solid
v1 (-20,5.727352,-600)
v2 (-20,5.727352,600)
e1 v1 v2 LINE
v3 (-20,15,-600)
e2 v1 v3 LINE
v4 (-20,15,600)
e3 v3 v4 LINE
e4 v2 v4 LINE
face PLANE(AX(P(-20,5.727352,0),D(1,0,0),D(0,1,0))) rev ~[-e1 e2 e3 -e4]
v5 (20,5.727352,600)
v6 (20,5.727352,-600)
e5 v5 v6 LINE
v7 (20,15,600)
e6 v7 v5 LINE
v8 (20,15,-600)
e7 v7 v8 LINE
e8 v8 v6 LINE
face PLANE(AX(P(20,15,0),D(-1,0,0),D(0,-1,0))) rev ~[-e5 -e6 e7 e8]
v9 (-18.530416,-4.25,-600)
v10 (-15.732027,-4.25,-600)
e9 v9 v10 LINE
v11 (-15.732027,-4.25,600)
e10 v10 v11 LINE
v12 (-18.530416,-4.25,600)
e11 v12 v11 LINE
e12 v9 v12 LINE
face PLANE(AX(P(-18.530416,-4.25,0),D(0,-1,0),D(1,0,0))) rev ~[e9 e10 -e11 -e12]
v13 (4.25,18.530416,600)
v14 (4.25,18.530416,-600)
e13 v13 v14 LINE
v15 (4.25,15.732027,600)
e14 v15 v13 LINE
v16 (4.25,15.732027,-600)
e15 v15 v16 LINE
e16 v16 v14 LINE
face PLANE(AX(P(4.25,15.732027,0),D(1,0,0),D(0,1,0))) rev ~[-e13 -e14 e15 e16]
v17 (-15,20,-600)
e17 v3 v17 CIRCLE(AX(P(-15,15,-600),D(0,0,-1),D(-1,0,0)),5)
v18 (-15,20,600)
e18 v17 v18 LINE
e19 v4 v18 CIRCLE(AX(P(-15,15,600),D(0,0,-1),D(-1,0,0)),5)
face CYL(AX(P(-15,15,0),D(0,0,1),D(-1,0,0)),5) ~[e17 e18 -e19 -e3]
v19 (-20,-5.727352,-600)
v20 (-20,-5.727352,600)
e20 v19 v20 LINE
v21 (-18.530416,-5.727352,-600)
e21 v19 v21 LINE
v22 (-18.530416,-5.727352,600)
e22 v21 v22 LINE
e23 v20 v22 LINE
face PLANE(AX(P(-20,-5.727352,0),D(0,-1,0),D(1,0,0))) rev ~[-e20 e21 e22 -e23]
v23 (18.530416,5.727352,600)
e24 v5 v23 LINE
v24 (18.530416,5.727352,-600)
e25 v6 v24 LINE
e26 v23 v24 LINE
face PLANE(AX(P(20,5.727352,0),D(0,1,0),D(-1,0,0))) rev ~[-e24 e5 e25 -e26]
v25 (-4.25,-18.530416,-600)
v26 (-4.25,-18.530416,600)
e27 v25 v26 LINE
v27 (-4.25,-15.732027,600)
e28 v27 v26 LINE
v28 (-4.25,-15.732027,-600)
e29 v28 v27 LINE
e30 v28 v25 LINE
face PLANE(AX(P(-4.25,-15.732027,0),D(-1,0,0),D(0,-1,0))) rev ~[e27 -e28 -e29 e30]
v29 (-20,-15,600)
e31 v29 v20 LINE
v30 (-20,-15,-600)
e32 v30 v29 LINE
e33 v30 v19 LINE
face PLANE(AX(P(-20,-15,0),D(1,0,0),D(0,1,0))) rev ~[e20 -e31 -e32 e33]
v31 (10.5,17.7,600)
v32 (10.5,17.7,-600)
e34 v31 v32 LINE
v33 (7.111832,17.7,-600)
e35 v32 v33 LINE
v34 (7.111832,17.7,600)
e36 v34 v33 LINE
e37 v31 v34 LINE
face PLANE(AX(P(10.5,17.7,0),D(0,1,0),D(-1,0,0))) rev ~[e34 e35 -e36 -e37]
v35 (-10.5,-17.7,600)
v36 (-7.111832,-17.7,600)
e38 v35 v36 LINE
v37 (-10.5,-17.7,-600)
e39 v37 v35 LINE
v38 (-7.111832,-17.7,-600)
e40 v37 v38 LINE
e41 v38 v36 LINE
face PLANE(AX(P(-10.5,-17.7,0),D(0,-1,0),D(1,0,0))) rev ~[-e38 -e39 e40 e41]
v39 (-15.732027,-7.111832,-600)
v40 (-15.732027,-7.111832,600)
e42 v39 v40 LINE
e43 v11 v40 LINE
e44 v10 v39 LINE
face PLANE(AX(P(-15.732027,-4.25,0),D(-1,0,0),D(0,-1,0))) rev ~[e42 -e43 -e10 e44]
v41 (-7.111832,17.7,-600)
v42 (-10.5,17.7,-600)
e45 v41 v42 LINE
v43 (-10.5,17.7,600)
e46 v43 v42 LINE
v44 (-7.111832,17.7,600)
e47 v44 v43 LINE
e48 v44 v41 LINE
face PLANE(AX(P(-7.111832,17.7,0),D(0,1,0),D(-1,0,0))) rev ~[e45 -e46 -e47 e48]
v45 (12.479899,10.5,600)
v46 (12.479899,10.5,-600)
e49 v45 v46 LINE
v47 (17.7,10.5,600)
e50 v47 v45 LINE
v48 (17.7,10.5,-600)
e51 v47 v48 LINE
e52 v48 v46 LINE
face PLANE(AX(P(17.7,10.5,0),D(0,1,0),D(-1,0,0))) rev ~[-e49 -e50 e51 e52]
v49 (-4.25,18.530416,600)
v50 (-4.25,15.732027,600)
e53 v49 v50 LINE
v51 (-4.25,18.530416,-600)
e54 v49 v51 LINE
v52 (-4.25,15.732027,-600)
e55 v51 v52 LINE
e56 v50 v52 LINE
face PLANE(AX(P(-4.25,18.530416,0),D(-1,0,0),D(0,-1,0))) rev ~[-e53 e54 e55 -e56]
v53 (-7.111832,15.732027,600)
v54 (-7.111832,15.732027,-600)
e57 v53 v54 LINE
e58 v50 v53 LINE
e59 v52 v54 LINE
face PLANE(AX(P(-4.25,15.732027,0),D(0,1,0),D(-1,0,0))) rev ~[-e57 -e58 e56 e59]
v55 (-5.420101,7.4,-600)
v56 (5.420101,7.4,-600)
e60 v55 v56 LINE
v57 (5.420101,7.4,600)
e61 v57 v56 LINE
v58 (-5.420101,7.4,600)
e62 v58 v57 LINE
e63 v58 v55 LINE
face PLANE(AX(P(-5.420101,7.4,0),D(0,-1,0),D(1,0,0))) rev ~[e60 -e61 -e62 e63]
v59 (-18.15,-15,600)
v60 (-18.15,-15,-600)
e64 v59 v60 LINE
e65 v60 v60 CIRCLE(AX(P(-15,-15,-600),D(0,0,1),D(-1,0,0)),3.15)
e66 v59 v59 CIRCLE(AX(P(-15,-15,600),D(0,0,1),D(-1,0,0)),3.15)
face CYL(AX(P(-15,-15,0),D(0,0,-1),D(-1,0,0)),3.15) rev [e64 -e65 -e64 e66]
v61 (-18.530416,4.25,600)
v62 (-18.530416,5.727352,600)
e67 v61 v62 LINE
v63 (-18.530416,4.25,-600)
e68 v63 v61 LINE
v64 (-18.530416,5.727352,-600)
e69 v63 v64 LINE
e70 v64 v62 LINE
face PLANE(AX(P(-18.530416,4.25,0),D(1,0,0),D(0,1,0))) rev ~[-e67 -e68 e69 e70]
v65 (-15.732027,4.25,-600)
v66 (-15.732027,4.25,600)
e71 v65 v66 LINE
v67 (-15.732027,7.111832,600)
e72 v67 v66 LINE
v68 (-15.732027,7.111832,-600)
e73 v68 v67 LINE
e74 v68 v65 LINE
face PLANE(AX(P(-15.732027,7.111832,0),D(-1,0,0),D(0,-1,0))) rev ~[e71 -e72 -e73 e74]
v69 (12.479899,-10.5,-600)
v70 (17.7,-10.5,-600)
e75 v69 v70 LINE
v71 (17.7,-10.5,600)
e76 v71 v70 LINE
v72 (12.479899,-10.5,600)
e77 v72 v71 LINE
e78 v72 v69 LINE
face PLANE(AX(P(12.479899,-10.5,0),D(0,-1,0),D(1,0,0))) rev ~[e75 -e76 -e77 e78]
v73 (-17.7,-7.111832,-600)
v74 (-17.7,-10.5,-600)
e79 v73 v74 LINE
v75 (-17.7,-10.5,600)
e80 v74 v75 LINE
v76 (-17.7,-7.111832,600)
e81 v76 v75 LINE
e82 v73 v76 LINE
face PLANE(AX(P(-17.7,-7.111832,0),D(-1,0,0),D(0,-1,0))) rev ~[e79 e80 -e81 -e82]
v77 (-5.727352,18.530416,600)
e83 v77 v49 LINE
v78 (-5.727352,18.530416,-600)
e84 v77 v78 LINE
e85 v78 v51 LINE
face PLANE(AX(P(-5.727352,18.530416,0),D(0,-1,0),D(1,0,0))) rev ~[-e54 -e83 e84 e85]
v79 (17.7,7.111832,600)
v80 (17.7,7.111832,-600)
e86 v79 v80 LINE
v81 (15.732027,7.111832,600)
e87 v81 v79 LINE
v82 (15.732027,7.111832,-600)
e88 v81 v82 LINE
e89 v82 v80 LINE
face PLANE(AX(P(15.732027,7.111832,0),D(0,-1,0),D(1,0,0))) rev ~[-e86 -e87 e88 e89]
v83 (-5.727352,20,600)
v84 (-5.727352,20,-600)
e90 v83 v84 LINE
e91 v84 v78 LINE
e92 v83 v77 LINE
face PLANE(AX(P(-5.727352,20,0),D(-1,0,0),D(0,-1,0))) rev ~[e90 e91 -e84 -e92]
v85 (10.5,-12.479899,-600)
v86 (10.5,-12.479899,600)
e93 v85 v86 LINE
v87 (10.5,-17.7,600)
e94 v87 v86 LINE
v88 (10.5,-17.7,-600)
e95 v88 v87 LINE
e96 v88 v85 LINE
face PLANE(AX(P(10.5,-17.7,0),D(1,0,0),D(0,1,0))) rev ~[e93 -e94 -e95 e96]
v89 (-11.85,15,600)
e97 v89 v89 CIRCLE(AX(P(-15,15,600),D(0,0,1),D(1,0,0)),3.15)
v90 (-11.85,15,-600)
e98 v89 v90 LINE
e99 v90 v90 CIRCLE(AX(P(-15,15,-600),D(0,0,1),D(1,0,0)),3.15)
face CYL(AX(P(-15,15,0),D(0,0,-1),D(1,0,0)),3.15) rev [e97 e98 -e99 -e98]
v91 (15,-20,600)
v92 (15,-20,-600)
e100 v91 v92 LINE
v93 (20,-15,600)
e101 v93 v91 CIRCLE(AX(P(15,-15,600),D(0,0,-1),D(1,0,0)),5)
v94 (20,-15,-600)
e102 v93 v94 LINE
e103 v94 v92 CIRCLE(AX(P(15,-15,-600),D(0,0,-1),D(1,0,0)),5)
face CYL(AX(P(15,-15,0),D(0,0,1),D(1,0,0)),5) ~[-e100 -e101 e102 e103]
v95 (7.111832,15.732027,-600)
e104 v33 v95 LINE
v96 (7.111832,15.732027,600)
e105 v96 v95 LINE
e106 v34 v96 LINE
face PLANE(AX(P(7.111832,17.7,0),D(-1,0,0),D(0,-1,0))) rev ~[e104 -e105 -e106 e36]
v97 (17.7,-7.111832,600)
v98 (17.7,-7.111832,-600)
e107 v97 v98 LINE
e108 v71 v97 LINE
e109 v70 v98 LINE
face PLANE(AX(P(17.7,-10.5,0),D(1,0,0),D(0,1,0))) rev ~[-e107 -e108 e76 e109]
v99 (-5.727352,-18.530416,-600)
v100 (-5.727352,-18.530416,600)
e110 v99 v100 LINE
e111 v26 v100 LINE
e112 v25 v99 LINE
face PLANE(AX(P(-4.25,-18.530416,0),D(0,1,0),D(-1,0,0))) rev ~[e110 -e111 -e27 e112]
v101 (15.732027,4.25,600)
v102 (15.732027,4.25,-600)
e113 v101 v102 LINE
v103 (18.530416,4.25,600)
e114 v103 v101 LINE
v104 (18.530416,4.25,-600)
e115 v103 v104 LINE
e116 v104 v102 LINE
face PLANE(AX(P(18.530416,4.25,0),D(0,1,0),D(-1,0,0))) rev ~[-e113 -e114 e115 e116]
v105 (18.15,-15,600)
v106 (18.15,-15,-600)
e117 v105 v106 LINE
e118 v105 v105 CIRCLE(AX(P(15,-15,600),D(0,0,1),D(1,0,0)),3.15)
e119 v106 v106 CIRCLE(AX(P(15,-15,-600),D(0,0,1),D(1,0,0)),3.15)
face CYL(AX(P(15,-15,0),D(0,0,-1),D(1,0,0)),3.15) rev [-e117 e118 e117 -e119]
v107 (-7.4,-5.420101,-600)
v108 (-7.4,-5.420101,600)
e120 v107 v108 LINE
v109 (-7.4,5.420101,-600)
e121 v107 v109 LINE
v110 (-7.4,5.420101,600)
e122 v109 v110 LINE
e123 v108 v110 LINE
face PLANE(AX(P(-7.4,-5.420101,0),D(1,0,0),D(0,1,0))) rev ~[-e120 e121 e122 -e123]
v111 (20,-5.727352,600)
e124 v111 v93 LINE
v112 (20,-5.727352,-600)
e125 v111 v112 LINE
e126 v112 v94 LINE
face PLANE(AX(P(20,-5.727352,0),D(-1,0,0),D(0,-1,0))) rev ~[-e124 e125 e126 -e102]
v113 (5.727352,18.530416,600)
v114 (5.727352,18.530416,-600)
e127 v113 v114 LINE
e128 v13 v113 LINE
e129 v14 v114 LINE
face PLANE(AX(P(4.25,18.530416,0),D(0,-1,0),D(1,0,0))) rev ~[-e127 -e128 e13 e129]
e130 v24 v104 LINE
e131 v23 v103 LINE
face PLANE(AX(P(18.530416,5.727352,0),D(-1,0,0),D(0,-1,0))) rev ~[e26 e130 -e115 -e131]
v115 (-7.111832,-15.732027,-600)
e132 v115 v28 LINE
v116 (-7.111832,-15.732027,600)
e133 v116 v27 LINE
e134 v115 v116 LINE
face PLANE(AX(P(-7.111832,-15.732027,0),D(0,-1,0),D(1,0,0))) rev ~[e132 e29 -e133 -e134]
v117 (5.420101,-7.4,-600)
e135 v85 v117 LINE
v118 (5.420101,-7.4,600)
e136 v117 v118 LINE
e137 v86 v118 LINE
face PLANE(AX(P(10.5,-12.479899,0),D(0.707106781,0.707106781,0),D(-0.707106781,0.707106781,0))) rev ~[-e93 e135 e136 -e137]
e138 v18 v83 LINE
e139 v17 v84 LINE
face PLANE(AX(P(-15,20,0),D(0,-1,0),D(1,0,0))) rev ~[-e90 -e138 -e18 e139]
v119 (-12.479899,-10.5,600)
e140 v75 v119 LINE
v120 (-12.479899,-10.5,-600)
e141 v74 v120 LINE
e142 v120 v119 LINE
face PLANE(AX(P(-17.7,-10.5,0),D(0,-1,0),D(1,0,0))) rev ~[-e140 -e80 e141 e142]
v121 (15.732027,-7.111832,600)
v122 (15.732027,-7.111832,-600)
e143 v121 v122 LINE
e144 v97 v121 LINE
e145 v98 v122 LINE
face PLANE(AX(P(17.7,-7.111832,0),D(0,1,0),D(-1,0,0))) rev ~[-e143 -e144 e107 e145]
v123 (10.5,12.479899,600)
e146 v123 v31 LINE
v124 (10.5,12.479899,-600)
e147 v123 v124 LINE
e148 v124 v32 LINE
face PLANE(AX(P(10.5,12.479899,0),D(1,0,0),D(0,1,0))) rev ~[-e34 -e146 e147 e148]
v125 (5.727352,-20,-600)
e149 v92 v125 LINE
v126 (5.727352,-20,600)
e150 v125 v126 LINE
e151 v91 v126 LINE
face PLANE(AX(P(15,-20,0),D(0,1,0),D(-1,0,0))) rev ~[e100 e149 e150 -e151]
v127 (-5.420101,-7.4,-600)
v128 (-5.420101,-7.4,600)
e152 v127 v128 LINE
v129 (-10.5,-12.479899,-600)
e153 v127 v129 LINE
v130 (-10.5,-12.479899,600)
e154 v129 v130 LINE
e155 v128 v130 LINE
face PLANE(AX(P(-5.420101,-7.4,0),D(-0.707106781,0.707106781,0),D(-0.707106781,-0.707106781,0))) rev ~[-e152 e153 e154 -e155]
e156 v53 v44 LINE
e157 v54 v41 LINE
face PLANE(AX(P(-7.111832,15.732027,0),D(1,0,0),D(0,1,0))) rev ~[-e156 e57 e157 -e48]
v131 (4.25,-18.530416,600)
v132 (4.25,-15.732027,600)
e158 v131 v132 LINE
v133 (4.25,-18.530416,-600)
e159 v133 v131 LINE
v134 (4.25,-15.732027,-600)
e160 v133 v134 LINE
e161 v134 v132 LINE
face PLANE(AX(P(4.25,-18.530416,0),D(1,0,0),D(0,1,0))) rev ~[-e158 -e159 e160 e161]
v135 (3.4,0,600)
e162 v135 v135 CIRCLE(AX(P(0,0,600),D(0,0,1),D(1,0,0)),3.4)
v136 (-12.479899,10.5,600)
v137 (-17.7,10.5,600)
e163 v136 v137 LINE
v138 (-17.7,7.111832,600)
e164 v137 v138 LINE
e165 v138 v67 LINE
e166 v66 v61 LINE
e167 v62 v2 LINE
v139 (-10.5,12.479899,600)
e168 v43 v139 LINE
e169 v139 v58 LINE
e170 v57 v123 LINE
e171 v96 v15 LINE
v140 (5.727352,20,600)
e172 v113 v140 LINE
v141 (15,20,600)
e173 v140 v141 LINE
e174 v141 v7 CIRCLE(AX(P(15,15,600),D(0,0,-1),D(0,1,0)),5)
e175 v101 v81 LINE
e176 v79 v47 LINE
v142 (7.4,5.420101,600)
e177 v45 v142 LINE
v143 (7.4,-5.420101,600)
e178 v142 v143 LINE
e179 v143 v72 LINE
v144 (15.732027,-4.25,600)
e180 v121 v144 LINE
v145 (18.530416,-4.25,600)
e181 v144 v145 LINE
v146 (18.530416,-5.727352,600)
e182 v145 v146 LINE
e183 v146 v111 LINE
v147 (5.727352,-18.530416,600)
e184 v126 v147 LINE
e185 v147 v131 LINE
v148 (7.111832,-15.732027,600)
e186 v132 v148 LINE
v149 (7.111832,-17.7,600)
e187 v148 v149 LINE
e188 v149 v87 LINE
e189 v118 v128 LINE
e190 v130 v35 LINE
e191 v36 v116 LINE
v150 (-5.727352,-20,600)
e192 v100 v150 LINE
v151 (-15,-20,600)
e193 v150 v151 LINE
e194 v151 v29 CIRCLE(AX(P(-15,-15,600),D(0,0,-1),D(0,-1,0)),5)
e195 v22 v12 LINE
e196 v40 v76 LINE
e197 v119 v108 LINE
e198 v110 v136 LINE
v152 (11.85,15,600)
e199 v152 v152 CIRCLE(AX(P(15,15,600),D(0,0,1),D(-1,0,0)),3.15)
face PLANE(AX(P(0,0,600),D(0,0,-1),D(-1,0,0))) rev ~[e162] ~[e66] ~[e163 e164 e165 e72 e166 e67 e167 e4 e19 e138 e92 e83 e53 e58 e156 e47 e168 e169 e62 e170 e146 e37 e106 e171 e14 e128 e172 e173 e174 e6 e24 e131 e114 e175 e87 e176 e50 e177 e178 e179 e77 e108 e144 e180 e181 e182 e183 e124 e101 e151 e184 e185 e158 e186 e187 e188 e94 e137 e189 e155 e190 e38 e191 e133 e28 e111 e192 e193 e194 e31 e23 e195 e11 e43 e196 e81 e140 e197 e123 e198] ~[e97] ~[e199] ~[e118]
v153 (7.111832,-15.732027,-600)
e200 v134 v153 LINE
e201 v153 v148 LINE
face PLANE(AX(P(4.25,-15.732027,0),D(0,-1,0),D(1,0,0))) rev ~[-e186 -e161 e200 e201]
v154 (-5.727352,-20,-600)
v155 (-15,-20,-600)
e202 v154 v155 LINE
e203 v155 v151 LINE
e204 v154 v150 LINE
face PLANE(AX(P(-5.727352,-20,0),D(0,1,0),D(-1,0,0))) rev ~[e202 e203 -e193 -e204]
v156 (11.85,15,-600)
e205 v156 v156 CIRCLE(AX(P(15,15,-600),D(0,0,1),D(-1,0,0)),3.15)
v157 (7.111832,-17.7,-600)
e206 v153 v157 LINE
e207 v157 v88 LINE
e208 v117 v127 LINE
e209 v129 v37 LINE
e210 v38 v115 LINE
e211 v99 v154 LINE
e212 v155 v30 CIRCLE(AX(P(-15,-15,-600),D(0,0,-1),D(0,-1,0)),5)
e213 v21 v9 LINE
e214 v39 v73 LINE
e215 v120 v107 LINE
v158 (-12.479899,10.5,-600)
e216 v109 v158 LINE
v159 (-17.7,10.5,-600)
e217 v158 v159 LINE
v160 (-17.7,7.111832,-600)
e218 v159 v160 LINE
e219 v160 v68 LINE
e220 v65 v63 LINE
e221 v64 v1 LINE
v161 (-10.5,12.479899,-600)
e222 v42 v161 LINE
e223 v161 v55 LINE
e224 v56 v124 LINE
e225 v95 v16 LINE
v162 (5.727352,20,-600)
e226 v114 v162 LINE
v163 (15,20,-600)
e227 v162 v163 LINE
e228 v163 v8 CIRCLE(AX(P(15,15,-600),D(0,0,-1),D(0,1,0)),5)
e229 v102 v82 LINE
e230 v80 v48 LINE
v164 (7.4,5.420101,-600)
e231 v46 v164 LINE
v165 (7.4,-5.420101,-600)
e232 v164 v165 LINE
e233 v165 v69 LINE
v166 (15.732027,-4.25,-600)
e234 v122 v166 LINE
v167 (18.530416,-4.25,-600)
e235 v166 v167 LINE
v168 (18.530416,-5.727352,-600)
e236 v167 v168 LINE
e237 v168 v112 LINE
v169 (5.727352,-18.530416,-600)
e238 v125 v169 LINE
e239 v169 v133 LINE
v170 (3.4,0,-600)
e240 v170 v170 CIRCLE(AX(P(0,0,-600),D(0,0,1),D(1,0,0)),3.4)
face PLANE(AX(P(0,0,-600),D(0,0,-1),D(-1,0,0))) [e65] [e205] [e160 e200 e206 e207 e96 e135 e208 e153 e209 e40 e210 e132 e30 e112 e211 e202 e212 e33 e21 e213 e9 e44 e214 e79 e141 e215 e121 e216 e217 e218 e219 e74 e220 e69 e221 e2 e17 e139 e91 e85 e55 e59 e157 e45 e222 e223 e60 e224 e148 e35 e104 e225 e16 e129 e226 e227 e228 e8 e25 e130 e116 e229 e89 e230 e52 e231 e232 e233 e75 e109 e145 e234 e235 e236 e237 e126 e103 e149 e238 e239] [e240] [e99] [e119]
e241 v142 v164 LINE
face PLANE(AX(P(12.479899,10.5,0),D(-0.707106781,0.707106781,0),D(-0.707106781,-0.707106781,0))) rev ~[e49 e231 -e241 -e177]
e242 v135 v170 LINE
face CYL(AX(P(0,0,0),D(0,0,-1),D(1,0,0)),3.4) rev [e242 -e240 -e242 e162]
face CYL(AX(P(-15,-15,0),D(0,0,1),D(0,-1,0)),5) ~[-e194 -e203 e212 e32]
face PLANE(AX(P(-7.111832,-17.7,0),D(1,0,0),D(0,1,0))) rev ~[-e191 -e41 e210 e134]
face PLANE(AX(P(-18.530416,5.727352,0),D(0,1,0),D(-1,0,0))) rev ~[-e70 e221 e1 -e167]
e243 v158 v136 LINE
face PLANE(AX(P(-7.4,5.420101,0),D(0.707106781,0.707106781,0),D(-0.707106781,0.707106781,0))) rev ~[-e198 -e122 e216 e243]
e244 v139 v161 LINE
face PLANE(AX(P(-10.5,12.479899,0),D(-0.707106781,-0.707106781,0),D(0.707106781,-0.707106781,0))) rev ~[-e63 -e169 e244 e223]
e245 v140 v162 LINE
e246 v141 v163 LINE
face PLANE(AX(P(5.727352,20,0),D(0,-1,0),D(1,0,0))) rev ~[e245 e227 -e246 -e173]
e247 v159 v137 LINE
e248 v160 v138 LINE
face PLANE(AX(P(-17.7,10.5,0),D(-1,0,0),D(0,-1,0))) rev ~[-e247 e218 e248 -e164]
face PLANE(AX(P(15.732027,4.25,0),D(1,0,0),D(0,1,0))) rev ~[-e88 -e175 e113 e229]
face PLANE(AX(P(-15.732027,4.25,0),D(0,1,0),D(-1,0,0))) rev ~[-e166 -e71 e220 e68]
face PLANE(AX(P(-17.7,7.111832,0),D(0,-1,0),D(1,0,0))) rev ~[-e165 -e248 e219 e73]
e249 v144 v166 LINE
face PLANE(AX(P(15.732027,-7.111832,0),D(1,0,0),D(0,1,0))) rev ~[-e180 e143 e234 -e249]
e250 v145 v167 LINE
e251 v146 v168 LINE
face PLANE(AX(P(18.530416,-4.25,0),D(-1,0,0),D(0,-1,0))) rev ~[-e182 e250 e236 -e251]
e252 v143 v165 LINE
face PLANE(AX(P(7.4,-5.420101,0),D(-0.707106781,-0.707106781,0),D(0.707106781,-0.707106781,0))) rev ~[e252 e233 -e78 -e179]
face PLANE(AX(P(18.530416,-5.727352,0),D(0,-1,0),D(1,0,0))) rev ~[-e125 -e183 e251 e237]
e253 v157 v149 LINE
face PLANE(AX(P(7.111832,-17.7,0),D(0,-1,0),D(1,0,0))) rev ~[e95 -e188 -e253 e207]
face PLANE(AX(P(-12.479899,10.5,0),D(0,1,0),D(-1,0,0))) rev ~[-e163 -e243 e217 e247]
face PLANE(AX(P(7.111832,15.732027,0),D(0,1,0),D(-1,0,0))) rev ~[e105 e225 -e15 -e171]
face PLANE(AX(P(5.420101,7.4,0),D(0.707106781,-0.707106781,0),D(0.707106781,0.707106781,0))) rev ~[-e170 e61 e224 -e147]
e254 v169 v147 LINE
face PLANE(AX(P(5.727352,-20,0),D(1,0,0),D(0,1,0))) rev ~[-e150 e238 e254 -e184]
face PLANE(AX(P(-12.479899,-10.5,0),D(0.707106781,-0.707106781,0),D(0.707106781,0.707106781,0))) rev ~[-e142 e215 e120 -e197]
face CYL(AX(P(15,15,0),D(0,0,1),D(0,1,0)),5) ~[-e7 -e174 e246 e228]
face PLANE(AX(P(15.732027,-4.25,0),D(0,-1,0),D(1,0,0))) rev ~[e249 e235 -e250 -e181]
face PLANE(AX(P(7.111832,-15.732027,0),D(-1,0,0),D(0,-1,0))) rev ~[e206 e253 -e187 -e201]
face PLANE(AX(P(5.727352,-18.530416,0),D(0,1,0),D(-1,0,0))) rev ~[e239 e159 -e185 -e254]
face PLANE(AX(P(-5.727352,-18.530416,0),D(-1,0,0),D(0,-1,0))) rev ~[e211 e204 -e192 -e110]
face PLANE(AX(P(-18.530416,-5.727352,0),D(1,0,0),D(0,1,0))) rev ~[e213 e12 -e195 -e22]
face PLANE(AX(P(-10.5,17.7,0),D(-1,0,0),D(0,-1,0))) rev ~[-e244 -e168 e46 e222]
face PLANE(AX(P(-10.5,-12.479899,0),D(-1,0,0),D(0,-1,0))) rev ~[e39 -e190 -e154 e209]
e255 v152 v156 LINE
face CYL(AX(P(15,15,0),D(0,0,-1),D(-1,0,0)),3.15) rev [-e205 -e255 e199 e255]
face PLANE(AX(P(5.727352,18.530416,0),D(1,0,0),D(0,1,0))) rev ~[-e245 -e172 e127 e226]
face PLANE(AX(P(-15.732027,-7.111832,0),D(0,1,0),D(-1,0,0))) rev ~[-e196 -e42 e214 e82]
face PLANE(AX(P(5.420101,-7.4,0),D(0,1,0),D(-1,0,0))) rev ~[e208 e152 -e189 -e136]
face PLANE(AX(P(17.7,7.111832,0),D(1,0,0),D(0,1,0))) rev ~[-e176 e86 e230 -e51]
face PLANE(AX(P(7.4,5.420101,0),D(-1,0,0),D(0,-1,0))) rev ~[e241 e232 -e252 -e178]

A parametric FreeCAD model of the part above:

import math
import FreeCAD as App
import Part
import Sketcher
from FreeCAD import Vector

doc = App.newDocument("Part")
params = doc.addObject("Spreadsheet::Sheet", "Params")
for row, (alias, value) in enumerate([
    ("sketch1_radius", "5 mm"),
    ("sketch1_diameter", "6.3 mm"),
    ("sketch1_diameter2", "6.8 mm"),
    ("pad1_length", "1200 mm"),
], start=1):
    params.set(f"A{row}", alias)
    params.set(f"B{row}", "=" + value)
    params.setAlias(f"B{row}", alias)

body = doc.addObject("PartDesign::Body", "Body")

sketch1 = body.newObject("Sketcher::SketchObject", "Sketch")
sketch1.AttachmentSupport = (doc.getObject("XY_Plane"), [""])
sketch1.MapMode = "FlatFace"
sketch1.addGeometry(Part.LineSegment(Vector(-5.7, 20, 0), Vector(-15, 20, 0)), False)
sketch1.addGeometry(Part.ArcOfCircle(Part.Circle(Vector(-15, 15, 0), Vector(0, 0, 1), 5), math.radians(90), math.radians(180)), False)
sketch1.addGeometry(Part.LineSegment(Vector(-20, 15, 0), Vector(-20, 5.7, 0)), False)
sketch1.addGeometry(Part.LineSegment(Vector(-20, 5.7, 0), Vector(-18.5, 5.7, 0)), False)
sketch1.addGeometry(Part.LineSegment(Vector(-18.5, 5.7, 0), Vector(-18.5, 4.2, 0)), False)
sketch1.addGeometry(Part.LineSegment(Vector(-18.5, 4.2, 0), Vector(-15.7, 4.2, 0)), False)
sketch1.addGeometry(Part.LineSegment(Vector(-15.7, 4.2, 0), Vector(-15.7, 7.1, 0)), False)
sketch1.addGeometry(Part.LineSegment(Vector(-15.7, 7.1, 0), Vector(-17.7, 7.1, 0)), False)
sketch1.addGeometry(Part.LineSegment(Vector(-17.7, 7.1, 0), Vector(-17.7, 10.5, 0)), False)
sketch1.addGeometry(Part.LineSegment(Vector(-17.7, 10.5, 0), Vector(-12.5, 10.5, 0)), False)
sketch1.addGeometry(Part.LineSegment(Vector(-12.5, 10.5, 0), Vector(-7.4, 5.4, 0)), False)
sketch1.addGeometry(Part.LineSegment(Vector(-7.4, 5.4, 0), Vector(-7.4, -5.4, 0)), False)
sketch1.addGeometry(Part.LineSegment(Vector(-7.4, -5.4, 0), Vector(-12.5, -10.5, 0)), False)
sketch1.addGeometry(Part.LineSegment(Vector(-12.5, -10.5, 0), Vector(-17.7, -10.5, 0)), False)
sketch1.addGeometry(Part.LineSegment(Vector(-17.7, -10.5, 0), Vector(-17.7, -7.1, 0)), False)
sketch1.addGeometry(Part.LineSegment(Vector(-17.7, -7.1, 0), Vector(-15.7, -7.1, 0)), False)
sketch1.addGeometry(Part.LineSegment(Vector(-15.7, -7.1, 0), Vector(-15.7, -4.2, 0)), False)
sketch1.addGeometry(Part.LineSegment(Vector(-15.7, -4.2, 0), Vector(-18.5, -4.2, 0)), False)
sketch1.addGeometry(Part.LineSegment(Vector(-18.5, -4.2, 0), Vector(-18.5, -5.7, 0)), False)
sketch1.addGeometry(Part.LineSegment(Vector(-18.5, -5.7, 0), Vector(-20, -5.7, 0)), False)
sketch1.addGeometry(Part.LineSegment(Vector(-20, -5.7, 0), Vector(-20, -15, 0)), False)
sketch1.addGeometry(Part.ArcOfCircle(Part.Circle(Vector(-15, -15, 0), Vector(0, 0, 1), 5), math.radians(180), math.radians(270)), False)
sketch1.addGeometry(Part.LineSegment(Vector(-15, -20, 0), Vector(-5.7, -20, 0)), False)
sketch1.addGeometry(Part.LineSegment(Vector(-5.7, -20, 0), Vector(-5.7, -18.5, 0)), False)
sketch1.addGeometry(Part.LineSegment(Vector(-5.7, -18.5, 0), Vector(-4.2, -18.5, 0)), False)
sketch1.addGeometry(Part.LineSegment(Vector(-4.2, -18.5, 0), Vector(-4.2, -15.7, 0)), False)
sketch1.addGeometry(Part.LineSegment(Vector(-4.2, -15.7, 0), Vector(-7.1, -15.7, 0)), False)
sketch1.addGeometry(Part.LineSegment(Vector(-7.1, -15.7, 0), Vector(-7.1, -17.7, 0)), False)
sketch1.addGeometry(Part.LineSegment(Vector(-7.1, -17.7, 0), Vector(-10.5, -17.7, 0)), False)
sketch1.addGeometry(Part.LineSegment(Vector(-10.5, -17.7, 0), Vector(-10.5, -12.5, 0)), False)
sketch1.addGeometry(Part.LineSegment(Vector(-10.5, -12.5, 0), Vector(-5.4, -7.4, 0)), False)
sketch1.addGeometry(Part.LineSegment(Vector(-5.4, -7.4, 0), Vector(5.4, -7.4, 0)), False)
sketch1.addGeometry(Part.LineSegment(Vector(5.4, -7.4, 0), Vector(10.5, -12.5, 0)), False)
sketch1.addGeometry(Part.LineSegment(Vector(10.5, -12.5, 0), Vector(10.5, -17.7, 0)), False)
sketch1.addGeometry(Part.LineSegment(Vector(10.5, -17.7, 0), Vector(7.1, -17.7, 0)), False)
sketch1.addGeometry(Part.LineSegment(Vector(7.1, -17.7, 0), Vector(7.1, -15.7, 0)), False)
sketch1.addGeometry(Part.LineSegment(Vector(7.1, -15.7, 0), Vector(4.2, -15.7, 0)), False)
sketch1.addGeometry(Part.LineSegment(Vector(4.2, -15.7, 0), Vector(4.2, -18.5, 0)), False)
sketch1.addGeometry(Part.LineSegment(Vector(4.2, -18.5, 0), Vector(5.7, -18.5, 0)), False)
sketch1.addGeometry(Part.LineSegment(Vector(5.7, -18.5, 0), Vector(5.7, -20, 0)), False)
sketch1.addGeometry(Part.LineSegment(Vector(5.7, -20, 0), Vector(15, -20, 0)), False)
sketch1.addGeometry(Part.ArcOfCircle(Part.Circle(Vector(15, -15, 0), Vector(0, 0, 1), 5), math.radians(-90), math.radians(0)), False)
sketch1.addGeometry(Part.LineSegment(Vector(20, -15, 0), Vector(20, -5.7, 0)), False)
sketch1.addGeometry(Part.LineSegment(Vector(20, -5.7, 0), Vector(18.5, -5.7, 0)), False)
sketch1.addGeometry(Part.LineSegment(Vector(18.5, -5.7, 0), Vector(18.5, -4.2, 0)), False)
sketch1.addGeometry(Part.LineSegment(Vector(18.5, -4.2, 0), Vector(15.7, -4.2, 0)), False)
sketch1.addGeometry(Part.LineSegment(Vector(15.7, -4.2, 0), Vector(15.7, -7.1, 0)), False)
sketch1.addGeometry(Part.LineSegment(Vector(15.7, -7.1, 0), Vector(17.7, -7.1, 0)), False)
sketch1.addGeometry(Part.LineSegment(Vector(17.7, -7.1, 0), Vector(17.7, -10.5, 0)), False)
sketch1.addGeometry(Part.LineSegment(Vector(17.7, -10.5, 0), Vector(12.5, -10.5, 0)), False)
sketch1.addGeometry(Part.LineSegment(Vector(12.5, -10.5, 0), Vector(7.4, -5.4, 0)), False)
sketch1.addGeometry(Part.LineSegment(Vector(7.4, -5.4, 0), Vector(7.4, 5.4, 0)), False)
sketch1.addGeometry(Part.LineSegment(Vector(7.4, 5.4, 0), Vector(12.5, 10.5, 0)), False)
sketch1.addGeometry(Part.LineSegment(Vector(12.5, 10.5, 0), Vector(17.7, 10.5, 0)), False)
sketch1.addGeometry(Part.LineSegment(Vector(17.7, 10.5, 0), Vector(17.7, 7.1, 0)), False)
sketch1.addGeometry(Part.LineSegment(Vector(17.7, 7.1, 0), Vector(15.7, 7.1, 0)), False)
sketch1.addGeometry(Part.LineSegment(Vector(15.7, 7.1, 0), Vector(15.7, 4.2, 0)), False)
sketch1.addGeometry(Part.LineSegment(Vector(15.7, 4.2, 0), Vector(18.5, 4.2, 0)), False)
sketch1.addGeometry(Part.LineSegment(Vector(18.5, 4.2, 0), Vector(18.5, 5.7, 0)), False)
sketch1.addGeometry(Part.LineSegment(Vector(18.5, 5.7, 0), Vector(20, 5.7, 0)), False)
sketch1.addGeometry(Part.LineSegment(Vector(20, 5.7, 0), Vector(20, 15, 0)), False)
sketch1.addGeometry(Part.ArcOfCircle(Part.Circle(Vector(15, 15, 0), Vector(0, 0, 1), 5), math.radians(0), math.radians(90)), False)
sketch1.addGeometry(Part.LineSegment(Vector(15, 20, 0), Vector(5.7, 20, 0)), False)
sketch1.addGeometry(Part.LineSegment(Vector(5.7, 20, 0), Vector(5.7, 18.5, 0)), False)
sketch1.addGeometry(Part.LineSegment(Vector(5.7, 18.5, 0), Vector(4.2, 18.5, 0)), False)
sketch1.addGeometry(Part.LineSegment(Vector(4.2, 18.5, 0), Vector(4.2, 15.7, 0)), False)
sketch1.addGeometry(Part.LineSegment(Vector(4.2, 15.7, 0), Vector(7.1, 15.7, 0)), False)
sketch1.addGeometry(Part.LineSegment(Vector(7.1, 15.7, 0), Vector(7.1, 17.7, 0)), False)
sketch1.addGeometry(Part.LineSegment(Vector(7.1, 17.7, 0), Vector(10.5, 17.7, 0)), False)
sketch1.addGeometry(Part.LineSegment(Vector(10.5, 17.7, 0), Vector(10.5, 12.5, 0)), False)
sketch1.addGeometry(Part.LineSegment(Vector(10.5, 12.5, 0), Vector(5.4, 7.4, 0)), False)
sketch1.addGeometry(Part.LineSegment(Vector(5.4, 7.4, 0), Vector(-5.4, 7.4, 0)), False)
sketch1.addGeometry(Part.LineSegment(Vector(-5.4, 7.4, 0), Vector(-10.5, 12.5, 0)), False)
sketch1.addGeometry(Part.LineSegment(Vector(-10.5, 12.5, 0), Vector(-10.5, 17.7, 0)), False)
sketch1.addGeometry(Part.LineSegment(Vector(-10.5, 17.7, 0), Vector(-7.1, 17.7, 0)), False)
sketch1.addGeometry(Part.LineSegment(Vector(-7.1, 17.7, 0), Vector(-7.1, 15.7, 0)), False)
sketch1.addGeometry(Part.LineSegment(Vector(-7.1, 15.7, 0), Vector(-4.2, 15.7, 0)), False)
sketch1.addGeometry(Part.LineSegment(Vector(-4.2, 15.7, 0), Vector(-4.2, 18.5, 0)), False)
sketch1.addGeometry(Part.LineSegment(Vector(-4.2, 18.5, 0), Vector(-5.7, 18.5, 0)), False)
sketch1.addGeometry(Part.LineSegment(Vector(-5.7, 18.5, 0), Vector(-5.7, 20, 0)), False)
sketch1.addGeometry(Part.Circle(Vector(15, -15, 0), Vector(0, 0, 1), 3.1), False)
sketch1.addGeometry(Part.Circle(Vector(-15, -15, 0), Vector(0, 0, 1), 3.1), False)
sketch1.addGeometry(Part.Circle(Vector(15, 15, 0), Vector(0, 0, 1), 3.1), False)
sketch1.addGeometry(Part.Circle(Vector(0, 0, 0), Vector(0, 0, 1), 3.4), False)
sketch1.addGeometry(Part.Circle(Vector(-15, 15, 0), Vector(0, 0, 1), 3.1), False)
sketch1.addConstraint(Sketcher.Constraint("Tangent", 0, 2, 1, 1))
sketch1.addConstraint(Sketcher.Constraint("Tangent", 1, 2, 2, 1))
sketch1.addConstraint(Sketcher.Constraint("Coincident", 2, 2, 3, 1))
sketch1.addConstraint(Sketcher.Constraint("Coincident", 3, 2, 4, 1))
sketch1.addConstraint(Sketcher.Constraint("Coincident", 4, 2, 5, 1))
sketch1.addConstraint(Sketcher.Constraint("Coincident", 5, 2, 6, 1))
sketch1.addConstraint(Sketcher.Constraint("Coincident", 6, 2, 7, 1))
sketch1.addConstraint(Sketcher.Constraint("Coincident", 7, 2, 8, 1))
sketch1.addConstraint(Sketcher.Constraint("Coincident", 8, 2, 9, 1))
sketch1.addConstraint(Sketcher.Constraint("Coincident", 9, 2, 10, 1))
sketch1.addConstraint(Sketcher.Constraint("Coincident", 10, 2, 11, 1))
sketch1.addConstraint(Sketcher.Constraint("Coincident", 11, 2, 12, 1))
sketch1.addConstraint(Sketcher.Constraint("Coincident", 12, 2, 13, 1))
sketch1.addConstraint(Sketcher.Constraint("Coincident", 13, 2, 14, 1))
sketch1.addConstraint(Sketcher.Constraint("Coincident", 14, 2, 15, 1))
sketch1.addConstraint(Sketcher.Constraint("Coincident", 15, 2, 16, 1))
sketch1.addConstraint(Sketcher.Constraint("Coincident", 16, 2, 17, 1))
sketch1.addConstraint(Sketcher.Constraint("Coincident", 17, 2, 18, 1))
sketch1.addConstraint(Sketcher.Constraint("Coincident", 18, 2, 19, 1))
sketch1.addConstraint(Sketcher.Constraint("Coincident", 19, 2, 20, 1))
sketch1.addConstraint(Sketcher.Constraint("Tangent", 20, 2, 21, 1))
sketch1.addConstraint(Sketcher.Constraint("Tangent", 21, 2, 22, 1))
sketch1.addConstraint(Sketcher.Constraint("Coincident", 22, 2, 23, 1))
sketch1.addConstraint(Sketcher.Constraint("Coincident", 23, 2, 24, 1))
sketch1.addConstraint(Sketcher.Constraint("Coincident", 24, 2, 25, 1))
sketch1.addConstraint(Sketcher.Constraint("Coincident", 25, 2, 26, 1))
sketch1.addConstraint(Sketcher.Constraint("Coincident", 26, 2, 27, 1))
sketch1.addConstraint(Sketcher.Constraint("Coincident", 27, 2, 28, 1))
sketch1.addConstraint(Sketcher.Constraint("Coincident", 28, 2, 29, 1))
sketch1.addConstraint(Sketcher.Constraint("Coincident", 29, 2, 30, 1))
sketch1.addConstraint(Sketcher.Constraint("Coincident", 30, 2, 31, 1))
sketch1.addConstraint(Sketcher.Constraint("Coincident", 31, 2, 32, 1))
sketch1.addConstraint(Sketcher.Constraint("Coincident", 32, 2, 33, 1))
sketch1.addConstraint(Sketcher.Constraint("Coincident", 33, 2, 34, 1))
sketch1.addConstraint(Sketcher.Constraint("Coincident", 34, 2, 35, 1))
sketch1.addConstraint(Sketcher.Constraint("Coincident", 35, 2, 36, 1))
sketch1.addConstraint(Sketcher.Constraint("Coincident", 36, 2, 37, 1))
sketch1.addConstraint(Sketcher.Constraint("Coincident", 37, 2, 38, 1))
sketch1.addConstraint(Sketcher.Constraint("Coincident", 38, 2, 39, 1))
sketch1.addConstraint(Sketcher.Constraint("Coincident", 39, 2, 40, 1))
sketch1.addConstraint(Sketcher.Constraint("Tangent", 40, 2, 41, 1))
sketch1.addConstraint(Sketcher.Constraint("Tangent", 41, 2, 42, 1))
sketch1.addConstraint(Sketcher.Constraint("Coincident", 42, 2, 43, 1))
sketch1.addConstraint(Sketcher.Constraint("Coincident", 43, 2, 44, 1))
sketch1.addConstraint(Sketcher.Constraint("Coincident", 44, 2, 45, 1))
sketch1.addConstraint(Sketcher.Constraint("Coincident", 45, 2, 46, 1))
sketch1.addConstraint(Sketcher.Constraint("Coincident", 46, 2, 47, 1))
sketch1.addConstraint(Sketcher.Constraint("Coincident", 47, 2, 48, 1))
sketch1.addConstraint(Sketcher.Constraint("Coincident", 48, 2, 49, 1))
sketch1.addConstraint(Sketcher.Constraint("Coincident", 49, 2, 50, 1))
sketch1.addConstraint(Sketcher.Constraint("Coincident", 50, 2, 51, 1))
sketch1.addConstraint(Sketcher.Constraint("Coincident", 51, 2, 52, 1))
sketch1.addConstraint(Sketcher.Constraint("Coincident", 52, 2, 53, 1))
sketch1.addConstraint(Sketcher.Constraint("Coincident", 53, 2, 54, 1))
sketch1.addConstraint(Sketcher.Constraint("Coincident", 54, 2, 55, 1))
sketch1.addConstraint(Sketcher.Constraint("Coincident", 55, 2, 56, 1))
sketch1.addConstraint(Sketcher.Constraint("Coincident", 56, 2, 57, 1))
sketch1.addConstraint(Sketcher.Constraint("Coincident", 57, 2, 58, 1))
sketch1.addConstraint(Sketcher.Constraint("Coincident", 58, 2, 59, 1))
sketch1.addConstraint(Sketcher.Constraint("Coincident", 59, 2, 60, 1))
sketch1.addConstraint(Sketcher.Constraint("Tangent", 60, 2, 61, 1))
sketch1.addConstraint(Sketcher.Constraint("Tangent", 61, 2, 62, 1))
sketch1.addConstraint(Sketcher.Constraint("Coincident", 62, 2, 63, 1))
sketch1.addConstraint(Sketcher.Constraint("Coincident", 63, 2, 64, 1))
sketch1.addConstraint(Sketcher.Constraint("Coincident", 64, 2, 65, 1))
sketch1.addConstraint(Sketcher.Constraint("Coincident", 65, 2, 66, 1))
sketch1.addConstraint(Sketcher.Constraint("Coincident", 66, 2, 67, 1))
sketch1.addConstraint(Sketcher.Constraint("Coincident", 67, 2, 68, 1))
sketch1.addConstraint(Sketcher.Constraint("Coincident", 68, 2, 69, 1))
sketch1.addConstraint(Sketcher.Constraint("Coincident", 69, 2, 70, 1))
sketch1.addConstraint(Sketcher.Constraint("Coincident", 70, 2, 71, 1))
sketch1.addConstraint(Sketcher.Constraint("Coincident", 71, 2, 72, 1))
sketch1.addConstraint(Sketcher.Constraint("Coincident", 72, 2, 73, 1))
sketch1.addConstraint(Sketcher.Constraint("Coincident", 73, 2, 74, 1))
sketch1.addConstraint(Sketcher.Constraint("Coincident", 74, 2, 75, 1))
sketch1.addConstraint(Sketcher.Constraint("Coincident", 75, 2, 76, 1))
sketch1.addConstraint(Sketcher.Constraint("Coincident", 76, 2, 77, 1))
sketch1.addConstraint(Sketcher.Constraint("Coincident", 77, 2, 78, 1))
sketch1.addConstraint(Sketcher.Constraint("Coincident", 78, 2, 79, 1))
sketch1.addConstraint(Sketcher.Constraint("Coincident", 79, 2, 0, 1))
sketch1.addConstraint(Sketcher.Constraint("Horizontal", 0))
sketch1.addConstraint(Sketcher.Constraint("Vertical", 2))
sketch1.addConstraint(Sketcher.Constraint("Horizontal", 3))
sketch1.addConstraint(Sketcher.Constraint("Vertical", 4))
sketch1.addConstraint(Sketcher.Constraint("Horizontal", 5))
sketch1.addConstraint(Sketcher.Constraint("Vertical", 6))
sketch1.addConstraint(Sketcher.Constraint("Horizontal", 7))
sketch1.addConstraint(Sketcher.Constraint("Vertical", 8))
sketch1.addConstraint(Sketcher.Constraint("Horizontal", 9))
sketch1.addConstraint(Sketcher.Constraint("Vertical", 11))
sketch1.addConstraint(Sketcher.Constraint("Horizontal", 13))
sketch1.addConstraint(Sketcher.Constraint("Vertical", 14))
sketch1.addConstraint(Sketcher.Constraint("Horizontal", 15))
sketch1.addConstraint(Sketcher.Constraint("Vertical", 16))
sketch1.addConstraint(Sketcher.Constraint("Horizontal", 17))
sketch1.addConstraint(Sketcher.Constraint("Vertical", 18))
sketch1.addConstraint(Sketcher.Constraint("Horizontal", 19))
sketch1.addConstraint(Sketcher.Constraint("Vertical", 20))
sketch1.addConstraint(Sketcher.Constraint("Horizontal", 22))
sketch1.addConstraint(Sketcher.Constraint("Vertical", 23))
sketch1.addConstraint(Sketcher.Constraint("Horizontal", 24))
sketch1.addConstraint(Sketcher.Constraint("Vertical", 25))
sketch1.addConstraint(Sketcher.Constraint("Horizontal", 26))
sketch1.addConstraint(Sketcher.Constraint("Vertical", 27))
sketch1.addConstraint(Sketcher.Constraint("Horizontal", 28))
sketch1.addConstraint(Sketcher.Constraint("Vertical", 29))
sketch1.addConstraint(Sketcher.Constraint("Horizontal", 31))
sketch1.addConstraint(Sketcher.Constraint("Vertical", 33))
sketch1.addConstraint(Sketcher.Constraint("Horizontal", 34))
sketch1.addConstraint(Sketcher.Constraint("Vertical", 35))
sketch1.addConstraint(Sketcher.Constraint("Horizontal", 36))
sketch1.addConstraint(Sketcher.Constraint("Vertical", 37))
sketch1.addConstraint(Sketcher.Constraint("Horizontal", 38))
sketch1.addConstraint(Sketcher.Constraint("Vertical", 39))
sketch1.addConstraint(Sketcher.Constraint("Horizontal", 40))
sketch1.addConstraint(Sketcher.Constraint("Vertical", 42))
sketch1.addConstraint(Sketcher.Constraint("Horizontal", 43))
sketch1.addConstraint(Sketcher.Constraint("Vertical", 44))
sketch1.addConstraint(Sketcher.Constraint("Horizontal", 45))
sketch1.addConstraint(Sketcher.Constraint("Vertical", 46))
sketch1.addConstraint(Sketcher.Constraint("Horizontal", 47))
sketch1.addConstraint(Sketcher.Constraint("Vertical", 48))
sketch1.addConstraint(Sketcher.Constraint("Horizontal", 49))
sketch1.addConstraint(Sketcher.Constraint("Vertical", 51))
sketch1.addConstraint(Sketcher.Constraint("Horizontal", 53))
sketch1.addConstraint(Sketcher.Constraint("Vertical", 54))
sketch1.addConstraint(Sketcher.Constraint("Horizontal", 55))
sketch1.addConstraint(Sketcher.Constraint("Vertical", 56))
sketch1.addConstraint(Sketcher.Constraint("Horizontal", 57))
sketch1.addConstraint(Sketcher.Constraint("Vertical", 58))
sketch1.addConstraint(Sketcher.Constraint("Horizontal", 59))
sketch1.addConstraint(Sketcher.Constraint("Vertical", 60))
sketch1.addConstraint(Sketcher.Constraint("Horizontal", 62))
sketch1.addConstraint(Sketcher.Constraint("Vertical", 63))
sketch1.addConstraint(Sketcher.Constraint("Horizontal", 64))
sketch1.addConstraint(Sketcher.Constraint("Vertical", 65))
sketch1.addConstraint(Sketcher.Constraint("Horizontal", 66))
sketch1.addConstraint(Sketcher.Constraint("Vertical", 67))
sketch1.addConstraint(Sketcher.Constraint("Horizontal", 68))
sketch1.addConstraint(Sketcher.Constraint("Vertical", 69))
sketch1.addConstraint(Sketcher.Constraint("Horizontal", 71))
sketch1.addConstraint(Sketcher.Constraint("Vertical", 73))
sketch1.addConstraint(Sketcher.Constraint("Horizontal", 74))
sketch1.addConstraint(Sketcher.Constraint("Vertical", 75))
sketch1.addConstraint(Sketcher.Constraint("Horizontal", 76))
sketch1.addConstraint(Sketcher.Constraint("Vertical", 77))
sketch1.addConstraint(Sketcher.Constraint("Horizontal", 78))
sketch1.addConstraint(Sketcher.Constraint("Vertical", 79))
sketch1.addConstraint(Sketcher.Constraint("Coincident", 83, 3, -1, 1))
sketch1.addConstraint(Sketcher.Constraint("Coincident", 80, 3, 41, 3))
sketch1.addConstraint(Sketcher.Constraint("Coincident", 81, 3, 21, 3))
sketch1.addConstraint(Sketcher.Constraint("Coincident", 82, 3, 61, 3))
sketch1.addConstraint(Sketcher.Constraint("Coincident", 84, 3, 1, 3))
sketch1.addConstraint(Sketcher.Constraint("Equal", 1, 21))
sketch1.addConstraint(Sketcher.Constraint("Equal", 21, 41))
sketch1.addConstraint(Sketcher.Constraint("Equal", 41, 61))
sketch1.addConstraint(Sketcher.Constraint("Equal", 80, 81))
sketch1.addConstraint(Sketcher.Constraint("Equal", 81, 82))
sketch1.addConstraint(Sketcher.Constraint("Equal", 82, 84))
sketch1.addConstraint(Sketcher.Constraint("Symmetric", 1, 3, 41, 3, -1, 1))
sketch1.addConstraint(Sketcher.Constraint("Symmetric", 21, 3, 61, 3, -1, 1))
sketch1.addConstraint(Sketcher.Constraint("Symmetric", 3, 2, 43, 2, -1, 1))
sketch1.addConstraint(Sketcher.Constraint("Symmetric", 5, 2, 45, 2, -1, 1))
sketch1.addConstraint(Sketcher.Constraint("Symmetric", 7, 2, 47, 2, -1, 1))
sketch1.addConstraint(Sketcher.Constraint("Symmetric", 9, 2, 49, 2, -1, 1))
sketch1.addConstraint(Sketcher.Constraint("Symmetric", 10, 2, 50, 2, -1, 1))
sketch1.addConstraint(Sketcher.Constraint("Symmetric", 12, 2, 52, 2, -1, 1))
sketch1.addConstraint(Sketcher.Constraint("Symmetric", 14, 2, 54, 2, -1, 1))
sketch1.addConstraint(Sketcher.Constraint("Symmetric", 16, 2, 56, 2, -1, 1))
sketch1.addConstraint(Sketcher.Constraint("Symmetric", 18, 2, 58, 2, -1, 1))
sketch1.addConstraint(Sketcher.Constraint("Symmetric", 23, 2, 63, 2, -1, 1))
sketch1.addConstraint(Sketcher.Constraint("Symmetric", 25, 2, 65, 2, -1, 1))
sketch1.addConstraint(Sketcher.Constraint("Symmetric", 27, 2, 67, 2, -1, 1))
sketch1.addConstraint(Sketcher.Constraint("Symmetric", 29, 2, 69, 2, -1, 1))
sketch1.addConstraint(Sketcher.Constraint("Symmetric", 30, 2, 70, 2, -1, 1))
sketch1.addConstraint(Sketcher.Constraint("Symmetric", 32, 2, 72, 2, -1, 1))
sketch1.addConstraint(Sketcher.Constraint("Symmetric", 34, 2, 74, 2, -1, 1))
sketch1.addConstraint(Sketcher.Constraint("Symmetric", 36, 2, 76, 2, -1, 1))
sketch1.addConstraint(Sketcher.Constraint("Symmetric", 38, 2, 78, 2, -1, 1))
sketch1.addConstraint(Sketcher.Constraint("Symmetric", 21, 3, 41, 3, -2))
sketch1.addConstraint(Sketcher.Constraint("Symmetric", 29, 2, 32, 2, -2))
sketch1.addConstraint(Sketcher.Constraint("Symmetric", 27, 2, 34, 2, -2))
sketch1.addConstraint(Sketcher.Constraint("Symmetric", 25, 2, 36, 2, -2))
sketch1.addConstraint(Sketcher.Constraint("Symmetric", 23, 2, 38, 2, -2))
sketch1.addConstraint(Sketcher.Constraint("Symmetric", 18, 2, 43, 2, -2))
sketch1.addConstraint(Sketcher.Constraint("Symmetric", 16, 2, 45, 2, -2))
sketch1.addConstraint(Sketcher.Constraint("Symmetric", 14, 2, 47, 2, -2))
sketch1.addConstraint(Sketcher.Constraint("Symmetric", 12, 2, 49, 2, -2))
sketch1.addConstraint(Sketcher.Constraint("Perpendicular", 10, 12))
sketch1.addConstraint(Sketcher.Constraint("Parallel", 12, 30))
sketch1.addConstraint(Sketcher.Constraint("Perpendicular", 30, 32))
sketch1.addConstraint(Sketcher.Constraint("Perpendicular", 50, 52))
sketch1.addConstraint(Sketcher.Constraint("Perpendicular", 70, 72))
sketch1.addConstraint(Sketcher.Constraint("Horizontal", 11, 2, 50, 2))
sketch1.addConstraint(Sketcher.Constraint("Equal", 62, 2))
sketch1.addConstraint(Sketcher.Constraint("Equal", 78, 4))
sketch1.addConstraint(Sketcher.Constraint("Equal", 76, 6))
sketch1.addConstraint(Sketcher.Constraint("Equal", 74, 8))
sketch1.addConstraint(Sketcher.Constraint("Equal", 71, 11))
sketch1.addConstraint(Sketcher.Constraint("Equal", 59, 23))
sketch1.addConstraint(Sketcher.Constraint("Equal", 57, 25))
sketch1.addConstraint(Sketcher.Constraint("Equal", 55, 27))
sketch1.addConstraint(Sketcher.Constraint("Equal", 53, 29))
sketch1.addConstraint(Sketcher.Constraint("Equal", 12, 30))
sketch1.addConstraint(Sketcher.Constraint("Radius", 1, 5.0))
sketch1.addConstraint(Sketcher.Constraint("Diameter", 80, 6.3))
sketch1.addConstraint(Sketcher.Constraint("Diameter", 83, 6.8))
sketch1.addConstraint(Sketcher.Constraint("DistanceX", 1, 3, -1, 1, 15.0))
sketch1.addConstraint(Sketcher.Constraint("DistanceX", 7, 2, -1, 1, 17.7))
sketch1.addConstraint(Sketcher.Constraint("DistanceY", -1, 1, 8, 2, 10.5))
sketch1.addConstraint(Sketcher.Constraint("DistanceX", 10, 2, -1, 1, 7.4))
sketch1.addConstraint(Sketcher.Constraint("DistanceY", -1, 1, 4, 2, 4.25))
sketch1.addConstraint(Sketcher.Constraint("DistanceX", 9, 1, 9, 2, 5.220101))
sketch1.addConstraint(Sketcher.Constraint("DistanceX", 0, 2, 0, 1, 9.272648))
sketch1.addConstraint(Sketcher.Constraint("DistanceX", 5, 1, 5, 2, 2.798389))
sketch1.addConstraint(Sketcher.Constraint("DistanceX", 26, 2, 26, 1, 2.861832))
sketch1.addConstraint(Sketcher.Constraint("DistanceX", 3, 1, 3, 2, 1.469584))
sketch1.setExpression("Constraints[204]", "Params.sketch1_radius")
sketch1.setExpression("Constraints[205]", "Params.sketch1_diameter")
sketch1.setExpression("Constraints[206]", "Params.sketch1_diameter2")
pad1 = body.newObject("PartDesign::Pad", "Pad")
pad1.Profile = sketch1
pad1.setExpression("Length", "Params.pad1_length")
pad1.Midplane = True

doc.recompute()
